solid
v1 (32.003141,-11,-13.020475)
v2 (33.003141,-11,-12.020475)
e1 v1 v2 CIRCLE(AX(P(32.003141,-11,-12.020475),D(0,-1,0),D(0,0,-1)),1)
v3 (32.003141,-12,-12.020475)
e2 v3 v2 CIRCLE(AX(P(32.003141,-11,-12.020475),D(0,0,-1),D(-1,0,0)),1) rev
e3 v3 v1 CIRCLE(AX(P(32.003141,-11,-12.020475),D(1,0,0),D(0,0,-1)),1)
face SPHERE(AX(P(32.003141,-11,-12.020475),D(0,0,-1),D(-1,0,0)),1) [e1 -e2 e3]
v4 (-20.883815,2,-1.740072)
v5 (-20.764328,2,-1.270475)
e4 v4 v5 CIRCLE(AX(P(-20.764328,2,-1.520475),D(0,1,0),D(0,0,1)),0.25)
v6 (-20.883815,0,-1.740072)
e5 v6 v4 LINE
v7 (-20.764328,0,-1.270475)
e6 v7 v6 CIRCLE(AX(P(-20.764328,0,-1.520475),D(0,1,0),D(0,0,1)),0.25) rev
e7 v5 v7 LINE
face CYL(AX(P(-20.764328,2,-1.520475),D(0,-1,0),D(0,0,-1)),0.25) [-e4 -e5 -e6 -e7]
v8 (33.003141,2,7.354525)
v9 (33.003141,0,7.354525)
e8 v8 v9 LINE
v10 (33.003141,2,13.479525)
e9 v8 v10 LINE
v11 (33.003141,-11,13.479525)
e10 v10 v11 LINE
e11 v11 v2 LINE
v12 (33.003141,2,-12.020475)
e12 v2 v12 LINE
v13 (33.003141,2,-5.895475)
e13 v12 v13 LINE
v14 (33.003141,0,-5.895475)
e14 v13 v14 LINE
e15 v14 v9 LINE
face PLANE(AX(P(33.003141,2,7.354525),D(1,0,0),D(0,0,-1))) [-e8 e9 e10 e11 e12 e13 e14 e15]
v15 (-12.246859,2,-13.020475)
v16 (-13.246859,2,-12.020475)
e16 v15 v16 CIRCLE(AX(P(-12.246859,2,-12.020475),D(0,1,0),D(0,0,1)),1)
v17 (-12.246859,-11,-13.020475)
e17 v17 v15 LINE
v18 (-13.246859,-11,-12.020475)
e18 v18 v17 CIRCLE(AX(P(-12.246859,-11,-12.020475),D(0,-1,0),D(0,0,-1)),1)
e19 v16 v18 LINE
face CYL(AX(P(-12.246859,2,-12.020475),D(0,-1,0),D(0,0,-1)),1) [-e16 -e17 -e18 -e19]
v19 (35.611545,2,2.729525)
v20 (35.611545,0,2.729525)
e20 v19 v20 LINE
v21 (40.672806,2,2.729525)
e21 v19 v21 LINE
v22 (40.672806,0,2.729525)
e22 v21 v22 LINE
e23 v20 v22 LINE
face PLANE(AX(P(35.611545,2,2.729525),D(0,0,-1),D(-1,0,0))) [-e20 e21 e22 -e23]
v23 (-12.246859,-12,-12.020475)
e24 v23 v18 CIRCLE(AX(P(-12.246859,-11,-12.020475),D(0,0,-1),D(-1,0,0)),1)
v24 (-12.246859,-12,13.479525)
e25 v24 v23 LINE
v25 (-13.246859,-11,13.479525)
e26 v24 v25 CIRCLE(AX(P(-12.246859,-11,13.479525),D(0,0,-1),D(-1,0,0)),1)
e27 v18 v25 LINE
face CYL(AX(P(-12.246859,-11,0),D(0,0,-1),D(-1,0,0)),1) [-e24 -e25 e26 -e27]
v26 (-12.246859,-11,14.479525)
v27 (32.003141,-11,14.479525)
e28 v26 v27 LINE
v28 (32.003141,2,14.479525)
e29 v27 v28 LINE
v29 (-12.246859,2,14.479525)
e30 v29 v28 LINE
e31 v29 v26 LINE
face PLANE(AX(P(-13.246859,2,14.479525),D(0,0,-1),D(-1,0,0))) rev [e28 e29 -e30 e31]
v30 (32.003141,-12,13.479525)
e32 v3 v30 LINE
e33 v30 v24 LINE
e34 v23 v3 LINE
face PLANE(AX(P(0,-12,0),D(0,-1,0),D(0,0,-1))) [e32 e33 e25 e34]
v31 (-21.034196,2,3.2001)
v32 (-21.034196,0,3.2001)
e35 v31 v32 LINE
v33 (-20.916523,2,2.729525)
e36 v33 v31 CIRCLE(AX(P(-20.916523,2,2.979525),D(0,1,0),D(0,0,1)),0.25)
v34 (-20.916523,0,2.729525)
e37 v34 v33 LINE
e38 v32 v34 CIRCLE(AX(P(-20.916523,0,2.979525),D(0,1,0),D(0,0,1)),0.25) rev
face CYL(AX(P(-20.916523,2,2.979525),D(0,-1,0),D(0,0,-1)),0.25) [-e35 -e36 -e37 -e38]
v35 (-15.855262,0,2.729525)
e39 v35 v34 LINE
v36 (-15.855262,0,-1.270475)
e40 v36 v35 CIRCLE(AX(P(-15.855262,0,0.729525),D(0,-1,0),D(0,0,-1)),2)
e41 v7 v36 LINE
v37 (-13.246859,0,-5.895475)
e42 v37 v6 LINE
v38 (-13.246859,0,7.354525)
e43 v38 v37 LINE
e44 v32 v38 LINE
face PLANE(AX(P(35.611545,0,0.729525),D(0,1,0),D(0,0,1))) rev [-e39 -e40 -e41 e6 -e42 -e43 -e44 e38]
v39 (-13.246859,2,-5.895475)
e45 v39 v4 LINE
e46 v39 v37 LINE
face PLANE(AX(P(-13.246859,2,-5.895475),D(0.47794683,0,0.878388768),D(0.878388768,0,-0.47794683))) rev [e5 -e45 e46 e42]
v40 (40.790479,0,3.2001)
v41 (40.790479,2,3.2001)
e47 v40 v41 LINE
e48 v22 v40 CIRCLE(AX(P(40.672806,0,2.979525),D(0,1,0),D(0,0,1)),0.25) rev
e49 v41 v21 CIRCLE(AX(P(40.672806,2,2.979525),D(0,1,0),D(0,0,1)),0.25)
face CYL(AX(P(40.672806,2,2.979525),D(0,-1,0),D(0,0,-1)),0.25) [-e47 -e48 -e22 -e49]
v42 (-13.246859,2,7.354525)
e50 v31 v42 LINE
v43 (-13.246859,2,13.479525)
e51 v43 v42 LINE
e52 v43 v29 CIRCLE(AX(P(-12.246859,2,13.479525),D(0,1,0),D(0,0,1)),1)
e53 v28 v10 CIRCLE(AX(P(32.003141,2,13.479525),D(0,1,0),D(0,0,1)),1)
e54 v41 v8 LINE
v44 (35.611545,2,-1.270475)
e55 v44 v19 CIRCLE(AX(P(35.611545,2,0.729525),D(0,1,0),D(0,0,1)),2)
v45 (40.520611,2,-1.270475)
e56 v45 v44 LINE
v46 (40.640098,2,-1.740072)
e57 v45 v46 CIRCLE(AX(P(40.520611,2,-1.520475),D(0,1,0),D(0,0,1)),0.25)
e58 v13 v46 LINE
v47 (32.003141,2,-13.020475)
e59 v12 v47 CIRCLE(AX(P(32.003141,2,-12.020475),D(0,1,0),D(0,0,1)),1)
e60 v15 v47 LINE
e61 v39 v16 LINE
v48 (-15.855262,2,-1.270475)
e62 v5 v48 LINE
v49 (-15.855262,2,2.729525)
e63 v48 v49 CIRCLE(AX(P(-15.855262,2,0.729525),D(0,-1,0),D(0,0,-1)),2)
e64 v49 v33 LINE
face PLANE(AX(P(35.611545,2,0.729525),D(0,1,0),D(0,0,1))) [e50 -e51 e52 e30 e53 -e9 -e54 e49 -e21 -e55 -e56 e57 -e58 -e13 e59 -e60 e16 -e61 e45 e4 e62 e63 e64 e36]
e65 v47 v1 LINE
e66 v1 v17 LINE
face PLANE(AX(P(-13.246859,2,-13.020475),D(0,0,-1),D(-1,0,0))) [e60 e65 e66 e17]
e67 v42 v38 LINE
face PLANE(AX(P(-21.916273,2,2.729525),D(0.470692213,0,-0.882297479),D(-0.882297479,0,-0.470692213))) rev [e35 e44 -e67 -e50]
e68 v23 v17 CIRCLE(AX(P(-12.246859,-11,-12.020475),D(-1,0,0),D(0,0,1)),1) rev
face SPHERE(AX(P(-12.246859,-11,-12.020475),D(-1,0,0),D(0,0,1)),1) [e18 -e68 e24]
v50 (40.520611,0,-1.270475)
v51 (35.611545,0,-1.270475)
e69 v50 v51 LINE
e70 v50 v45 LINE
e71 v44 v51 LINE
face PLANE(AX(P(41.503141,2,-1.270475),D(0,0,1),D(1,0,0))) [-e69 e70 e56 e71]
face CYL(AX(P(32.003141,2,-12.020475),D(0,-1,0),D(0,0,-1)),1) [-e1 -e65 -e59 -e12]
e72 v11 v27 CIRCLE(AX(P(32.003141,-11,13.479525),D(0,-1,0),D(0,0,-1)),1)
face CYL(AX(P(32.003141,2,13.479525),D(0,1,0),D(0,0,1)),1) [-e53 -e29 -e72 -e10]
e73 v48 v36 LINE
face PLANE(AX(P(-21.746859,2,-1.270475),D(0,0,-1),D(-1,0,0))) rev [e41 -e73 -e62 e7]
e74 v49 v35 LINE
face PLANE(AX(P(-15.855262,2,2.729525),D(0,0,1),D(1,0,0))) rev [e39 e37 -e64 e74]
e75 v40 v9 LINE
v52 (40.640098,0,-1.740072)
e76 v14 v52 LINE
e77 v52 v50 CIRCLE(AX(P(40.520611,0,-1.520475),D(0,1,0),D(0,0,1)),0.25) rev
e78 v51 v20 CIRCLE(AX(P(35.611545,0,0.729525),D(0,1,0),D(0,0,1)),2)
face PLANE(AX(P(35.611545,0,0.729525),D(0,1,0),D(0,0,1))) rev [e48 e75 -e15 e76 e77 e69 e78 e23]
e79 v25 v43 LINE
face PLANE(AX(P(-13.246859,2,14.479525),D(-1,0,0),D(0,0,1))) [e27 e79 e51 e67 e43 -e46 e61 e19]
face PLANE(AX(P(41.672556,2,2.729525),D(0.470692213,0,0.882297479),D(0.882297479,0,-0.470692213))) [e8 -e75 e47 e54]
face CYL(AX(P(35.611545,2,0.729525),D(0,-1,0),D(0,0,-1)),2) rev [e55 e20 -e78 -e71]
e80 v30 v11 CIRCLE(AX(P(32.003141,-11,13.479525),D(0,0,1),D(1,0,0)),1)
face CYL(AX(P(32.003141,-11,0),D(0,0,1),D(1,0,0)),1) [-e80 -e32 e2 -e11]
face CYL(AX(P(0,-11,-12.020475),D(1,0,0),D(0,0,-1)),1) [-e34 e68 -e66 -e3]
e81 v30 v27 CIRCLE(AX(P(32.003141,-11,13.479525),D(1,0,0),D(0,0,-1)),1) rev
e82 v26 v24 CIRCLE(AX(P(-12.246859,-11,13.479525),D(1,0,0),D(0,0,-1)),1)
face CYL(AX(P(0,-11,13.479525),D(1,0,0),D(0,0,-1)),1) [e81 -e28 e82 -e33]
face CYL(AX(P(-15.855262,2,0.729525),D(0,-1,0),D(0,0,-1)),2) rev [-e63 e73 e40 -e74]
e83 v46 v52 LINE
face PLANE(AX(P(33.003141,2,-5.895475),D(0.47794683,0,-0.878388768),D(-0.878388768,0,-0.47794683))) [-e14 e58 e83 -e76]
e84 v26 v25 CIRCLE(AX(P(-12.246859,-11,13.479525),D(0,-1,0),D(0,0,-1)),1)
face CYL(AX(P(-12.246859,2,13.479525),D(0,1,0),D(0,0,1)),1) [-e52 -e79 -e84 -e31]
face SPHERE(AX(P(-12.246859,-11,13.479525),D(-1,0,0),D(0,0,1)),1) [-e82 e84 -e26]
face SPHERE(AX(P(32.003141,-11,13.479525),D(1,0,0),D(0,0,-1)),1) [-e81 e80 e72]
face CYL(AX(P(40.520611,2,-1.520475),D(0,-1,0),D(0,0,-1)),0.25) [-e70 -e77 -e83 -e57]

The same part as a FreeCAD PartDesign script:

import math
import FreeCAD as App
import Part
import Sketcher


def edges_at(feature, points):
    """Names of the edges that pass closest to the given points."""
    edges = feature.Shape.Edges
    near = lambda p: min(range(len(edges)), key=lambda i: edges[i].distToShape(Part.Vertex(*p))[0])
    return sorted({f"Edge{near(p) + 1}" for p in points})


def add_polygon(sketch, points):
    """Adds a closed chain of lines whose ends are joined by coincident constraints."""
    first, n = sketch.GeometryCount, len(points)
    for a, b in zip(points, points[1:] + points[:1]):
        sketch.addGeometry(Part.LineSegment(App.Vector(*a, 0), App.Vector(*b, 0)), False)
    for i in range(n):
        sketch.addConstraint(Sketcher.Constraint("Coincident", first + i, 2, first + (i + 1) % n, 1))

doc = App.newDocument("Part")
params = doc.addObject("Spreadsheet::Sheet", "Params")
for row, (alias, value) in enumerate([
    ("sketch1_radius", "2 mm"),
    ("sketch1_width", "46.25 mm"),
    ("pad1_length", "2 mm"),
    ("sketch2_height", "27.5 mm"),
    ("sketch2_width", "46.25 mm"),
    ("pad2_length", "12 mm"),
    ("fillet_radius", "1 mm"),
    ("fillet2_radius", "1 mm"),
    ("fillet3_radius", "0.25 mm"),
], start=1):
    params.set(f"A{row}", alias)
    params.set(f"B{row}", "=" + value)
    params.setAlias(f"B{row}", alias)

body = doc.addObject("PartDesign::Body", "Body")

# Sketch on XZ plane
sketch1 = doc.addObject("Sketcher::SketchObject", "Sketch")
body.addObject(sketch1)
sketch1.AttachmentSupport = (doc.XZ_Plane, [""])
sketch1.MapMode = "FlatFace"
sketch1.addGeometry([
    Part.LineSegment(App.Vector(41.5, -1.3, 0), App.Vector(33, -5.9, 0)),  # 0
    Part.LineSegment(App.Vector(33, -5.9, 0), App.Vector(33, -13, 0)),  # 1
    Part.LineSegment(App.Vector(33, -13, 0), App.Vector(-13.2, -13, 0)),  # 2
    Part.LineSegment(App.Vector(-13.2, -13, 0), App.Vector(-13.2, -5.9, 0)),  # 3
    Part.LineSegment(App.Vector(-13.2, -5.9, 0), App.Vector(-21.7, -1.3, 0)),  # 4
    Part.LineSegment(App.Vector(-21.7, -1.3, 0), App.Vector(-15.9, -1.3, 0)),  # 5
    Part.ArcOfCircle(Part.Circle(App.Vector(-15.9, 0.7, 0), App.Vector(0, 0, 1), 2), math.radians(-90), math.radians(90)),  # 6
    Part.LineSegment(App.Vector(-15.9, 2.7, 0), App.Vector(-21.9, 2.7, 0)),  # 7
    Part.LineSegment(App.Vector(-21.9, 2.7, 0), App.Vector(-13.2, 7.4, 0)),  # 8
    Part.LineSegment(App.Vector(-13.2, 7.4, 0), App.Vector(-13.2, 14.5, 0)),  # 9
    Part.LineSegment(App.Vector(-13.2, 14.5, 0), App.Vector(33, 14.5, 0)),  # 10
    Part.LineSegment(App.Vector(33, 14.5, 0), App.Vector(33, 7.4, 0)),  # 11
    Part.LineSegment(App.Vector(33, 7.4, 0), App.Vector(41.7, 2.7, 0)),  # 12
    Part.LineSegment(App.Vector(41.7, 2.7, 0), App.Vector(35.6, 2.7, 0)),  # 13
    Part.ArcOfCircle(Part.Circle(App.Vector(35.6, 0.7, 0), App.Vector(0, 0, 1), 2), math.radians(90), math.radians(270)),  # 14
    Part.LineSegment(App.Vector(35.6, -1.3, 0), App.Vector(41.5, -1.3, 0)),  # 15
], False)
sketch1.addConstraint([
    Sketcher.Constraint("Coincident", 0, 2, 1, 1),
    Sketcher.Constraint("Coincident", 1, 2, 2, 1),
    Sketcher.Constraint("Coincident", 2, 2, 3, 1),
    Sketcher.Constraint("Coincident", 3, 2, 4, 1),
    Sketcher.Constraint("Coincident", 4, 2, 5, 1),
    Sketcher.Constraint("Tangent", 5, 2, 6, 1),
    Sketcher.Constraint("Tangent", 6, 2, 7, 1),
    Sketcher.Constraint("Coincident", 7, 2, 8, 1),
    Sketcher.Constraint("Coincident", 8, 2, 9, 1),
    Sketcher.Constraint("Coincident", 9, 2, 10, 1),
    Sketcher.Constraint("Coincident", 10, 2, 11, 1),
    Sketcher.Constraint("Coincident", 11, 2, 12, 1),
    Sketcher.Constraint("Coincident", 12, 2, 13, 1),
    Sketcher.Constraint("Tangent", 13, 2, 14, 1),
    Sketcher.Constraint("Tangent", 14, 2, 15, 1),
    Sketcher.Constraint("Coincident", 15, 2, 0, 1),
    Sketcher.Constraint("Vertical", 1),
    Sketcher.Constraint("Horizontal", 2),
    Sketcher.Constraint("Vertical", 3),
    Sketcher.Constraint("Horizontal", 5),
    Sketcher.Constraint("Horizontal", 7),
    Sketcher.Constraint("Vertical", 9),
    Sketcher.Constraint("Horizontal", 10),
    Sketcher.Constraint("Vertical", 11),
    Sketcher.Constraint("Horizontal", 13),
    Sketcher.Constraint("Horizontal", 15),
    Sketcher.Constraint("Equal", 6, 14),
    Sketcher.Constraint("Horizontal", 6, 3, 14, 3),
    Sketcher.Constraint("Horizontal", 0, 2, 3, 2),
    Sketcher.Constraint("Horizontal", 8, 2, 11, 2),
    Sketcher.Constraint("Vertical", 3, 2, 8, 2),
    Sketcher.Constraint("Vertical", 1, 2, 10, 2),
    Sketcher.Constraint("Equal", 7, 13),
    Sketcher.Constraint("Equal", 5, 15),
    Sketcher.Constraint("Equal", 3, 9),
    Sketcher.Constraint("Equal", 0, 4),
    Sketcher.Constraint("Radius", 6, 2.0),
    Sketcher.Constraint("DistanceX", 2, 2, 2, 1, 46.25),
    Sketcher.Constraint("DistanceX", 4, 2, 3, 2, 8.5),
    Sketcher.Constraint("DistanceY", 1, 2, 10, 2, 27.5),
    Sketcher.Constraint("DistanceY", 1, 2, 1, 1, 7.125),
    Sketcher.Constraint("DistanceY", 1, 2, 14, 3, 13.75),
    Sketcher.Constraint("DistanceX", 7, 2, 7, 1, 6.061011),
    Sketcher.Constraint("DistanceX", 5, 1, 5, 2, 5.891597),
    Sketcher.Constraint("DistanceX", 6, 3, -1, 1, 15.855262),
    Sketcher.Constraint("DistanceY", -1, 1, 6, 3, 0.729525),
])
sketch1.setExpression("Constraints[36]", "Params.sketch1_radius")
sketch1.setExpression("Constraints[37]", "Params.sketch1_width")
pad1 = doc.addObject("PartDesign::Pad", "Pad")
body.addObject(pad1)
pad1.Profile = sketch1
pad1.setExpression("Length", "Params.pad1_length")
pad1.Reversed = True

# Sketch on XZ plane
sketch2 = doc.addObject("Sketcher::SketchObject", "Sketch001")
body.addObject(sketch2)
sketch2.AttachmentSupport = (doc.XZ_Plane, [""])
sketch2.MapMode = "FlatFace"
add_polygon(sketch2, [(-13, 14), (-13, -13), (33, -13), (33, 14)])  # lines 0-3
sketch2.addConstraint([
    Sketcher.Constraint("Vertical", 0),
    Sketcher.Constraint("Horizontal", 1),
    Sketcher.Constraint("Vertical", 2),
    Sketcher.Constraint("Horizontal", 3),
    Sketcher.Constraint("DistanceY", 0, 2, 0, 1, 27.5),
    Sketcher.Constraint("DistanceX", 1, 1, 1, 2, 46.25),
    Sketcher.Constraint("DistanceX", 0, 2, -1, 1, 13.246859),
    Sketcher.Constraint("DistanceY", 0, 2, -1, 1, 13.020475),
])
sketch2.setExpression("Constraints[8]", "Params.sketch2_height")
sketch2.setExpression("Constraints[9]", "Params.sketch2_width")
pad2 = doc.addObject("PartDesign::Pad", "Pad001")
body.addObject(pad2)
pad2.Profile = sketch2
pad2.setExpression("Length", "Params.pad2_length")
doc.recompute()

fillet = doc.addObject("PartDesign::Fillet", "Fillet")
body.addObject(fillet)
fillet.Base = (pad2, edges_at(pad2, [(9.878, -12, 14.48)]))
fillet.setExpression("Radius", "Params.fillet_radius")
doc.recompute()

fillet2 = doc.addObject("PartDesign::Fillet", "Fillet001")
body.addObject(fillet2)
fillet2.Base = (fillet, edges_at(fillet, [
    (-13.247, -4.5, 14.48),
    (33.003, -4.5, 14.48),
    (33.003, -5, -13.02),
    (-13.247, -5, -13.02),
    (9.878, -12, -13.02),
    (33.003, -12, 0.23),
    (-13.247, -12, 0.23),
    (-13.247, -11.707, 14.187),
    (33.003, -11.707, 14.187),
]))
fillet2.setExpression("Radius", "Params.fillet2_radius")
doc.recompute()

fillet3 = doc.addObject("PartDesign::Fillet", "Fillet002")
body.addObject(fillet3)
fillet3.Base = (fillet2, edges_at(fillet2, [
    (-21.747, 1, -1.27),
    (-21.916, 1, 2.73),
    (41.673, 1, 2.73),
    (41.503, 1, -1.27),
]))
fillet3.setExpression("Radius", "Params.fillet3_radius")

doc.recompute()
